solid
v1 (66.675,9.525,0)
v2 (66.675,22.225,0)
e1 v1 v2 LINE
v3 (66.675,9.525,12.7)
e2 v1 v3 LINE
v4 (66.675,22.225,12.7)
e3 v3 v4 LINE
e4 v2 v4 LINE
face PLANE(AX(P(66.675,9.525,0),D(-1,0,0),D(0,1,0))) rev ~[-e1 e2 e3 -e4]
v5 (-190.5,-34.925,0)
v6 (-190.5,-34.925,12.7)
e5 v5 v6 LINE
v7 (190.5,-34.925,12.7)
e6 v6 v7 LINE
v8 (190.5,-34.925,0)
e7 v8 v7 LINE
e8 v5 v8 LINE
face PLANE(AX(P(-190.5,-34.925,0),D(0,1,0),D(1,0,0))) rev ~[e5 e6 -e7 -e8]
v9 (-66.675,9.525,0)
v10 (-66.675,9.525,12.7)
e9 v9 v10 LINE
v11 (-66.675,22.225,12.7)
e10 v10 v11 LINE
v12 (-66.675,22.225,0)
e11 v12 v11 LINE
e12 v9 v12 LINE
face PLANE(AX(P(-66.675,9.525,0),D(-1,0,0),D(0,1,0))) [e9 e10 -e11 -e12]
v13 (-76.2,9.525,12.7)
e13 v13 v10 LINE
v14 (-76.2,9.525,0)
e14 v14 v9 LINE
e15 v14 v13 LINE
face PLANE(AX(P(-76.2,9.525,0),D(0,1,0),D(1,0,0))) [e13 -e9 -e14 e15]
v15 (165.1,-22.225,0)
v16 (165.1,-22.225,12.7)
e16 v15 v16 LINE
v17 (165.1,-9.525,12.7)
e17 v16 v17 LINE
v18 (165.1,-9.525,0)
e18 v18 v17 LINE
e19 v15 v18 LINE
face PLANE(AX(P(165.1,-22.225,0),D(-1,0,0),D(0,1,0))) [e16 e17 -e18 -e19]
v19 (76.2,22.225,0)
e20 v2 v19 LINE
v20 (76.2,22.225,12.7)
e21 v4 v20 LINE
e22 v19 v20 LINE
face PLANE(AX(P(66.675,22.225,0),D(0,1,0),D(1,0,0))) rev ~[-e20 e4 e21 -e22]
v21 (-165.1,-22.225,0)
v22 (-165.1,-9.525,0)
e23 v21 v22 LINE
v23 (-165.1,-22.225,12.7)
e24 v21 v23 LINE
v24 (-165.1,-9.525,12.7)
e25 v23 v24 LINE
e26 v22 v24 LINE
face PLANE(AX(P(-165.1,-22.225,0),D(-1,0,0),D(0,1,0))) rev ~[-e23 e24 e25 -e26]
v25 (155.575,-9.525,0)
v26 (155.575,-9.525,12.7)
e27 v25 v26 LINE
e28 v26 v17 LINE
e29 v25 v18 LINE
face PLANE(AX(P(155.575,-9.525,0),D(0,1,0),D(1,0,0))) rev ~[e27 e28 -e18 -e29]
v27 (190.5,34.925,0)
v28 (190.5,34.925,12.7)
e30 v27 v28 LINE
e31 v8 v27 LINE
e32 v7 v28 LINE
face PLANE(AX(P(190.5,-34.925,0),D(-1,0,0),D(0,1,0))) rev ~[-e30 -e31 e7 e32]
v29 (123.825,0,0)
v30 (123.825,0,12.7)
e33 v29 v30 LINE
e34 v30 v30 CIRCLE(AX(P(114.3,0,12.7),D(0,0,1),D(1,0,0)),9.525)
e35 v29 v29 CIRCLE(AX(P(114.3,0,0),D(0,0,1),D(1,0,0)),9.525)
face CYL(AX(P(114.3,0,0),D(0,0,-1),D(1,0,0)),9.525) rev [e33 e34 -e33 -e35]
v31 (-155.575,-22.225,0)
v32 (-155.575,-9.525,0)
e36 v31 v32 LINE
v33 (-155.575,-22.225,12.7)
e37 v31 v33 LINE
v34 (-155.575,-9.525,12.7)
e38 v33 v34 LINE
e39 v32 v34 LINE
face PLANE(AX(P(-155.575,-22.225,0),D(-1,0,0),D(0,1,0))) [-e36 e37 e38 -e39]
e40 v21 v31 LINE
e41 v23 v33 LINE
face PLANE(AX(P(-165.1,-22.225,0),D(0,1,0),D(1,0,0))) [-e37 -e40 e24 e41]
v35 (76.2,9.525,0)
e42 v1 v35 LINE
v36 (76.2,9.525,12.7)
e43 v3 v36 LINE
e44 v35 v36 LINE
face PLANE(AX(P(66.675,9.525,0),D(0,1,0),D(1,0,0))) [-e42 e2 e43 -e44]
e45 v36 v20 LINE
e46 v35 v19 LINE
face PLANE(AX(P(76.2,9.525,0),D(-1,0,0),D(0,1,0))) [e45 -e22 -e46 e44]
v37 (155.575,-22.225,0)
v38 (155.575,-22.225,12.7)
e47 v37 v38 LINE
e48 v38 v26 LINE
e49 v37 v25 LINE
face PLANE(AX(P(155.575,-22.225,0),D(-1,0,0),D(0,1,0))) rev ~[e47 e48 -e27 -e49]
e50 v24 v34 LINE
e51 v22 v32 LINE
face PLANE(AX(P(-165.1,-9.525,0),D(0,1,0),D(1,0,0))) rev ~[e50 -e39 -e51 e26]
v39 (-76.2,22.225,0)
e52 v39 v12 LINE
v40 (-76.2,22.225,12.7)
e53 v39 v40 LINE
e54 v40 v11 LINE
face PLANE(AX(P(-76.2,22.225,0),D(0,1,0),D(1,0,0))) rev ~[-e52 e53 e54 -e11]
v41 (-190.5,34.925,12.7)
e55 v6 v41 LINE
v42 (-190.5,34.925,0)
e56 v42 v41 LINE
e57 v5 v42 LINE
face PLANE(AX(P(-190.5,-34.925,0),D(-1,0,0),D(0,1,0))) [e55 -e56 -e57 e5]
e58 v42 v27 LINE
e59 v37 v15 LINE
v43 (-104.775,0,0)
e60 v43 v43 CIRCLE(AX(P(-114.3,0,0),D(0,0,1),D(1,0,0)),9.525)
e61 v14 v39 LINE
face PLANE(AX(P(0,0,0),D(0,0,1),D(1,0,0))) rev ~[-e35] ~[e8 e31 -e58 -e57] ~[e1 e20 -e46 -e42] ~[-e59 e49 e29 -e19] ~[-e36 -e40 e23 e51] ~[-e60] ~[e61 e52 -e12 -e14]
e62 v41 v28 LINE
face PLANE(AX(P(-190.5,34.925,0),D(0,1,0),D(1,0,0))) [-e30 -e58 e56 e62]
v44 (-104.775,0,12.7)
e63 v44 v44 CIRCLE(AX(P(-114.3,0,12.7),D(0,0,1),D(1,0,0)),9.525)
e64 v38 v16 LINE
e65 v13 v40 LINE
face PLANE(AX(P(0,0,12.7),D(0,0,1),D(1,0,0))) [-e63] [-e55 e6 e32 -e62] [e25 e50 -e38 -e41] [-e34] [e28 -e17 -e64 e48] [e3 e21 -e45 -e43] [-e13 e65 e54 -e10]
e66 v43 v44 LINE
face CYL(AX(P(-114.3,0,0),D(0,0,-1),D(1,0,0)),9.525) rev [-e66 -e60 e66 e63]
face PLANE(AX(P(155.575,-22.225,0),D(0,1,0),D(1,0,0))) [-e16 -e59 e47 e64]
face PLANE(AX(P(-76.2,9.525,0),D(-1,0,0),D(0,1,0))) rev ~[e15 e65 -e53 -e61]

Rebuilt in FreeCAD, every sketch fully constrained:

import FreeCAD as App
import Part
import Sketcher

V = App.Vector
Q = App.Units.Quantity

doc = App.newDocument("Part")
body = doc.addObject("PartDesign::Body", "Body")

# Sketch on XY plane
sketch1 = body.newObject("Sketcher::SketchObject", "Sketch")
sketch1.AttachmentSupport = (doc.getObject("XY_Plane"), [""])
sketch1.MapMode = "FlatFace"
sketch1.addGeometry([
    Part.LineSegment(V(-190, 35, 0), V(-190, -35, 0)),  # 0
    Part.LineSegment(V(-190, -35, 0), V(190, -35, 0)),  # 1
    Part.LineSegment(V(190, -35, 0), V(190, 35, 0)),  # 2
    Part.LineSegment(V(190, 35, 0), V(-190, 35, 0)),  # 3
    Part.LineSegment(V(-156, -22, 0), V(-165, -22, 0)),  # 4
    Part.LineSegment(V(-165, -22, 0), V(-165, -10, 0)),  # 5
    Part.LineSegment(V(-165, -10, 0), V(-156, -10, 0)),  # 6
    Part.LineSegment(V(-156, -10, 0), V(-156, -22, 0)),  # 7
    Part.LineSegment(V(165, -22, 0), V(156, -22, 0)),  # 8
    Part.LineSegment(V(156, -22, 0), V(156, -10, 0)),  # 9
    Part.LineSegment(V(156, -10, 0), V(165, -10, 0)),  # 10
    Part.LineSegment(V(165, -10, 0), V(165, -22, 0)),  # 11
    Part.Circle(V(-114, 0, 0), V(0, 0, 1), 10),  # 12
    Part.LineSegment(V(-67, 10, 0), V(-76, 10, 0)),  # 13
    Part.LineSegment(V(-76, 10, 0), V(-76, 22, 0)),  # 14
    Part.LineSegment(V(-76, 22, 0), V(-67, 22, 0)),  # 15
    Part.LineSegment(V(-67, 22, 0), V(-67, 10, 0)),  # 16
    Part.Circle(V(114, 0, 0), V(0, 0, 1), 10),  # 17
    Part.LineSegment(V(76, 10, 0), V(67, 10, 0)),  # 18
    Part.LineSegment(V(67, 10, 0), V(67, 22, 0)),  # 19
    Part.LineSegment(V(67, 22, 0), V(76, 22, 0)),  # 20
    Part.LineSegment(V(76, 22, 0), V(76, 10, 0)),  # 21
], False)
sketch1.addConstraint([
    Sketcher.Constraint("Coincident", 0, 2, 1, 1),
    Sketcher.Constraint("Coincident", 1, 2, 2, 1),
    Sketcher.Constraint("Coincident", 2, 2, 3, 1),
    Sketcher.Constraint("Coincident", 3, 2, 0, 1),
    Sketcher.Constraint("Coincident", 4, 2, 5, 1),
    Sketcher.Constraint("Coincident", 5, 2, 6, 1),
    Sketcher.Constraint("Coincident", 6, 2, 7, 1),
    Sketcher.Constraint("Coincident", 7, 2, 4, 1),
    Sketcher.Constraint("Coincident", 8, 2, 9, 1),
    Sketcher.Constraint("Coincident", 9, 2, 10, 1),
    Sketcher.Constraint("Coincident", 10, 2, 11, 1),
    Sketcher.Constraint("Coincident", 11, 2, 8, 1),
    Sketcher.Constraint("Coincident", 13, 2, 14, 1),
    Sketcher.Constraint("Coincident", 14, 2, 15, 1),
    Sketcher.Constraint("Coincident", 15, 2, 16, 1),
    Sketcher.Constraint("Coincident", 16, 2, 13, 1),
    Sketcher.Constraint("Coincident", 18, 2, 19, 1),
    Sketcher.Constraint("Coincident", 19, 2, 20, 1),
    Sketcher.Constraint("Coincident", 20, 2, 21, 1),
    Sketcher.Constraint("Coincident", 21, 2, 18, 1),
    Sketcher.Constraint("Vertical", 0),
    Sketcher.Constraint("Horizontal", 1),
    Sketcher.Constraint("Vertical", 2),
    Sketcher.Constraint("Horizontal", 3),
    Sketcher.Constraint("Horizontal", 4),
    Sketcher.Constraint("Vertical", 5),
    Sketcher.Constraint("Horizontal", 6),
    Sketcher.Constraint("Vertical", 7),
    Sketcher.Constraint("Horizontal", 8),
    Sketcher.Constraint("Vertical", 9),
    Sketcher.Constraint("Horizontal", 10),
    Sketcher.Constraint("Vertical", 11),
    Sketcher.Constraint("Horizontal", 13),
    Sketcher.Constraint("Vertical", 14),
    Sketcher.Constraint("Horizontal", 15),
    Sketcher.Constraint("Vertical", 16),
    Sketcher.Constraint("Horizontal", 18),
    Sketcher.Constraint("Vertical", 19),
    Sketcher.Constraint("Horizontal", 20),
    Sketcher.Constraint("Vertical", 21),
    Sketcher.Constraint("Equal", 12, 17),
    Sketcher.Constraint("Symmetric", 12, 3, 17, 3, -1, 1),
    Sketcher.Constraint("Symmetric", 0, 2, 2, 2, -1, 1),
    Sketcher.Constraint("Symmetric", 7, 2, 8, 2, -2),
    Sketcher.Constraint("Symmetric", 5, 2, 10, 2, -2),
    Sketcher.Constraint("Symmetric", 16, 2, 18, 2, -2),
    Sketcher.Constraint("Symmetric", 14, 2, 20, 2, -2),
    Sketcher.Constraint("PointOnObject", 12, 3, -1),
    Sketcher.Constraint("Equal", 10, 13),
    Sketcher.Constraint("Equal", 11, 14),
    Sketcher.Constraint("Diameter", 12, Q("0.75 in")),
    Sketcher.Constraint("DistanceX", 1, 1, 1, 2, Q("15 in")),
    Sketcher.Constraint("DistanceY", 5, 1, 5, 2, Q("0.5 in")),
    Sketcher.Constraint("DistanceX", 13, 2, -1, 1, Q("3 in")),
    Sketcher.Constraint("DistanceX", 12, 3, 17, 3, Q("9 in")),
    Sketcher.Constraint("DistanceX", 0, 2, 4, 2, Q("1 in")),
    Sketcher.Constraint("DistanceY", 0, 2, 5, 2, Q("1 in")),
    Sketcher.Constraint("DistanceY", 0, 2, 0, 1, Q("2.75 in")),
    Sketcher.Constraint("DistanceX", 4, 2, 4, 1, Q("0.375 in")),
    Sketcher.Constraint("DistanceY", 6, 2, 13, 2, Q("0.75 in")),
])
pad1 = body.newObject("PartDesign::Pad", "Pad")
pad1.Profile = sketch1
pad1.Length = Q("0.5 in")

doc.recompute()
